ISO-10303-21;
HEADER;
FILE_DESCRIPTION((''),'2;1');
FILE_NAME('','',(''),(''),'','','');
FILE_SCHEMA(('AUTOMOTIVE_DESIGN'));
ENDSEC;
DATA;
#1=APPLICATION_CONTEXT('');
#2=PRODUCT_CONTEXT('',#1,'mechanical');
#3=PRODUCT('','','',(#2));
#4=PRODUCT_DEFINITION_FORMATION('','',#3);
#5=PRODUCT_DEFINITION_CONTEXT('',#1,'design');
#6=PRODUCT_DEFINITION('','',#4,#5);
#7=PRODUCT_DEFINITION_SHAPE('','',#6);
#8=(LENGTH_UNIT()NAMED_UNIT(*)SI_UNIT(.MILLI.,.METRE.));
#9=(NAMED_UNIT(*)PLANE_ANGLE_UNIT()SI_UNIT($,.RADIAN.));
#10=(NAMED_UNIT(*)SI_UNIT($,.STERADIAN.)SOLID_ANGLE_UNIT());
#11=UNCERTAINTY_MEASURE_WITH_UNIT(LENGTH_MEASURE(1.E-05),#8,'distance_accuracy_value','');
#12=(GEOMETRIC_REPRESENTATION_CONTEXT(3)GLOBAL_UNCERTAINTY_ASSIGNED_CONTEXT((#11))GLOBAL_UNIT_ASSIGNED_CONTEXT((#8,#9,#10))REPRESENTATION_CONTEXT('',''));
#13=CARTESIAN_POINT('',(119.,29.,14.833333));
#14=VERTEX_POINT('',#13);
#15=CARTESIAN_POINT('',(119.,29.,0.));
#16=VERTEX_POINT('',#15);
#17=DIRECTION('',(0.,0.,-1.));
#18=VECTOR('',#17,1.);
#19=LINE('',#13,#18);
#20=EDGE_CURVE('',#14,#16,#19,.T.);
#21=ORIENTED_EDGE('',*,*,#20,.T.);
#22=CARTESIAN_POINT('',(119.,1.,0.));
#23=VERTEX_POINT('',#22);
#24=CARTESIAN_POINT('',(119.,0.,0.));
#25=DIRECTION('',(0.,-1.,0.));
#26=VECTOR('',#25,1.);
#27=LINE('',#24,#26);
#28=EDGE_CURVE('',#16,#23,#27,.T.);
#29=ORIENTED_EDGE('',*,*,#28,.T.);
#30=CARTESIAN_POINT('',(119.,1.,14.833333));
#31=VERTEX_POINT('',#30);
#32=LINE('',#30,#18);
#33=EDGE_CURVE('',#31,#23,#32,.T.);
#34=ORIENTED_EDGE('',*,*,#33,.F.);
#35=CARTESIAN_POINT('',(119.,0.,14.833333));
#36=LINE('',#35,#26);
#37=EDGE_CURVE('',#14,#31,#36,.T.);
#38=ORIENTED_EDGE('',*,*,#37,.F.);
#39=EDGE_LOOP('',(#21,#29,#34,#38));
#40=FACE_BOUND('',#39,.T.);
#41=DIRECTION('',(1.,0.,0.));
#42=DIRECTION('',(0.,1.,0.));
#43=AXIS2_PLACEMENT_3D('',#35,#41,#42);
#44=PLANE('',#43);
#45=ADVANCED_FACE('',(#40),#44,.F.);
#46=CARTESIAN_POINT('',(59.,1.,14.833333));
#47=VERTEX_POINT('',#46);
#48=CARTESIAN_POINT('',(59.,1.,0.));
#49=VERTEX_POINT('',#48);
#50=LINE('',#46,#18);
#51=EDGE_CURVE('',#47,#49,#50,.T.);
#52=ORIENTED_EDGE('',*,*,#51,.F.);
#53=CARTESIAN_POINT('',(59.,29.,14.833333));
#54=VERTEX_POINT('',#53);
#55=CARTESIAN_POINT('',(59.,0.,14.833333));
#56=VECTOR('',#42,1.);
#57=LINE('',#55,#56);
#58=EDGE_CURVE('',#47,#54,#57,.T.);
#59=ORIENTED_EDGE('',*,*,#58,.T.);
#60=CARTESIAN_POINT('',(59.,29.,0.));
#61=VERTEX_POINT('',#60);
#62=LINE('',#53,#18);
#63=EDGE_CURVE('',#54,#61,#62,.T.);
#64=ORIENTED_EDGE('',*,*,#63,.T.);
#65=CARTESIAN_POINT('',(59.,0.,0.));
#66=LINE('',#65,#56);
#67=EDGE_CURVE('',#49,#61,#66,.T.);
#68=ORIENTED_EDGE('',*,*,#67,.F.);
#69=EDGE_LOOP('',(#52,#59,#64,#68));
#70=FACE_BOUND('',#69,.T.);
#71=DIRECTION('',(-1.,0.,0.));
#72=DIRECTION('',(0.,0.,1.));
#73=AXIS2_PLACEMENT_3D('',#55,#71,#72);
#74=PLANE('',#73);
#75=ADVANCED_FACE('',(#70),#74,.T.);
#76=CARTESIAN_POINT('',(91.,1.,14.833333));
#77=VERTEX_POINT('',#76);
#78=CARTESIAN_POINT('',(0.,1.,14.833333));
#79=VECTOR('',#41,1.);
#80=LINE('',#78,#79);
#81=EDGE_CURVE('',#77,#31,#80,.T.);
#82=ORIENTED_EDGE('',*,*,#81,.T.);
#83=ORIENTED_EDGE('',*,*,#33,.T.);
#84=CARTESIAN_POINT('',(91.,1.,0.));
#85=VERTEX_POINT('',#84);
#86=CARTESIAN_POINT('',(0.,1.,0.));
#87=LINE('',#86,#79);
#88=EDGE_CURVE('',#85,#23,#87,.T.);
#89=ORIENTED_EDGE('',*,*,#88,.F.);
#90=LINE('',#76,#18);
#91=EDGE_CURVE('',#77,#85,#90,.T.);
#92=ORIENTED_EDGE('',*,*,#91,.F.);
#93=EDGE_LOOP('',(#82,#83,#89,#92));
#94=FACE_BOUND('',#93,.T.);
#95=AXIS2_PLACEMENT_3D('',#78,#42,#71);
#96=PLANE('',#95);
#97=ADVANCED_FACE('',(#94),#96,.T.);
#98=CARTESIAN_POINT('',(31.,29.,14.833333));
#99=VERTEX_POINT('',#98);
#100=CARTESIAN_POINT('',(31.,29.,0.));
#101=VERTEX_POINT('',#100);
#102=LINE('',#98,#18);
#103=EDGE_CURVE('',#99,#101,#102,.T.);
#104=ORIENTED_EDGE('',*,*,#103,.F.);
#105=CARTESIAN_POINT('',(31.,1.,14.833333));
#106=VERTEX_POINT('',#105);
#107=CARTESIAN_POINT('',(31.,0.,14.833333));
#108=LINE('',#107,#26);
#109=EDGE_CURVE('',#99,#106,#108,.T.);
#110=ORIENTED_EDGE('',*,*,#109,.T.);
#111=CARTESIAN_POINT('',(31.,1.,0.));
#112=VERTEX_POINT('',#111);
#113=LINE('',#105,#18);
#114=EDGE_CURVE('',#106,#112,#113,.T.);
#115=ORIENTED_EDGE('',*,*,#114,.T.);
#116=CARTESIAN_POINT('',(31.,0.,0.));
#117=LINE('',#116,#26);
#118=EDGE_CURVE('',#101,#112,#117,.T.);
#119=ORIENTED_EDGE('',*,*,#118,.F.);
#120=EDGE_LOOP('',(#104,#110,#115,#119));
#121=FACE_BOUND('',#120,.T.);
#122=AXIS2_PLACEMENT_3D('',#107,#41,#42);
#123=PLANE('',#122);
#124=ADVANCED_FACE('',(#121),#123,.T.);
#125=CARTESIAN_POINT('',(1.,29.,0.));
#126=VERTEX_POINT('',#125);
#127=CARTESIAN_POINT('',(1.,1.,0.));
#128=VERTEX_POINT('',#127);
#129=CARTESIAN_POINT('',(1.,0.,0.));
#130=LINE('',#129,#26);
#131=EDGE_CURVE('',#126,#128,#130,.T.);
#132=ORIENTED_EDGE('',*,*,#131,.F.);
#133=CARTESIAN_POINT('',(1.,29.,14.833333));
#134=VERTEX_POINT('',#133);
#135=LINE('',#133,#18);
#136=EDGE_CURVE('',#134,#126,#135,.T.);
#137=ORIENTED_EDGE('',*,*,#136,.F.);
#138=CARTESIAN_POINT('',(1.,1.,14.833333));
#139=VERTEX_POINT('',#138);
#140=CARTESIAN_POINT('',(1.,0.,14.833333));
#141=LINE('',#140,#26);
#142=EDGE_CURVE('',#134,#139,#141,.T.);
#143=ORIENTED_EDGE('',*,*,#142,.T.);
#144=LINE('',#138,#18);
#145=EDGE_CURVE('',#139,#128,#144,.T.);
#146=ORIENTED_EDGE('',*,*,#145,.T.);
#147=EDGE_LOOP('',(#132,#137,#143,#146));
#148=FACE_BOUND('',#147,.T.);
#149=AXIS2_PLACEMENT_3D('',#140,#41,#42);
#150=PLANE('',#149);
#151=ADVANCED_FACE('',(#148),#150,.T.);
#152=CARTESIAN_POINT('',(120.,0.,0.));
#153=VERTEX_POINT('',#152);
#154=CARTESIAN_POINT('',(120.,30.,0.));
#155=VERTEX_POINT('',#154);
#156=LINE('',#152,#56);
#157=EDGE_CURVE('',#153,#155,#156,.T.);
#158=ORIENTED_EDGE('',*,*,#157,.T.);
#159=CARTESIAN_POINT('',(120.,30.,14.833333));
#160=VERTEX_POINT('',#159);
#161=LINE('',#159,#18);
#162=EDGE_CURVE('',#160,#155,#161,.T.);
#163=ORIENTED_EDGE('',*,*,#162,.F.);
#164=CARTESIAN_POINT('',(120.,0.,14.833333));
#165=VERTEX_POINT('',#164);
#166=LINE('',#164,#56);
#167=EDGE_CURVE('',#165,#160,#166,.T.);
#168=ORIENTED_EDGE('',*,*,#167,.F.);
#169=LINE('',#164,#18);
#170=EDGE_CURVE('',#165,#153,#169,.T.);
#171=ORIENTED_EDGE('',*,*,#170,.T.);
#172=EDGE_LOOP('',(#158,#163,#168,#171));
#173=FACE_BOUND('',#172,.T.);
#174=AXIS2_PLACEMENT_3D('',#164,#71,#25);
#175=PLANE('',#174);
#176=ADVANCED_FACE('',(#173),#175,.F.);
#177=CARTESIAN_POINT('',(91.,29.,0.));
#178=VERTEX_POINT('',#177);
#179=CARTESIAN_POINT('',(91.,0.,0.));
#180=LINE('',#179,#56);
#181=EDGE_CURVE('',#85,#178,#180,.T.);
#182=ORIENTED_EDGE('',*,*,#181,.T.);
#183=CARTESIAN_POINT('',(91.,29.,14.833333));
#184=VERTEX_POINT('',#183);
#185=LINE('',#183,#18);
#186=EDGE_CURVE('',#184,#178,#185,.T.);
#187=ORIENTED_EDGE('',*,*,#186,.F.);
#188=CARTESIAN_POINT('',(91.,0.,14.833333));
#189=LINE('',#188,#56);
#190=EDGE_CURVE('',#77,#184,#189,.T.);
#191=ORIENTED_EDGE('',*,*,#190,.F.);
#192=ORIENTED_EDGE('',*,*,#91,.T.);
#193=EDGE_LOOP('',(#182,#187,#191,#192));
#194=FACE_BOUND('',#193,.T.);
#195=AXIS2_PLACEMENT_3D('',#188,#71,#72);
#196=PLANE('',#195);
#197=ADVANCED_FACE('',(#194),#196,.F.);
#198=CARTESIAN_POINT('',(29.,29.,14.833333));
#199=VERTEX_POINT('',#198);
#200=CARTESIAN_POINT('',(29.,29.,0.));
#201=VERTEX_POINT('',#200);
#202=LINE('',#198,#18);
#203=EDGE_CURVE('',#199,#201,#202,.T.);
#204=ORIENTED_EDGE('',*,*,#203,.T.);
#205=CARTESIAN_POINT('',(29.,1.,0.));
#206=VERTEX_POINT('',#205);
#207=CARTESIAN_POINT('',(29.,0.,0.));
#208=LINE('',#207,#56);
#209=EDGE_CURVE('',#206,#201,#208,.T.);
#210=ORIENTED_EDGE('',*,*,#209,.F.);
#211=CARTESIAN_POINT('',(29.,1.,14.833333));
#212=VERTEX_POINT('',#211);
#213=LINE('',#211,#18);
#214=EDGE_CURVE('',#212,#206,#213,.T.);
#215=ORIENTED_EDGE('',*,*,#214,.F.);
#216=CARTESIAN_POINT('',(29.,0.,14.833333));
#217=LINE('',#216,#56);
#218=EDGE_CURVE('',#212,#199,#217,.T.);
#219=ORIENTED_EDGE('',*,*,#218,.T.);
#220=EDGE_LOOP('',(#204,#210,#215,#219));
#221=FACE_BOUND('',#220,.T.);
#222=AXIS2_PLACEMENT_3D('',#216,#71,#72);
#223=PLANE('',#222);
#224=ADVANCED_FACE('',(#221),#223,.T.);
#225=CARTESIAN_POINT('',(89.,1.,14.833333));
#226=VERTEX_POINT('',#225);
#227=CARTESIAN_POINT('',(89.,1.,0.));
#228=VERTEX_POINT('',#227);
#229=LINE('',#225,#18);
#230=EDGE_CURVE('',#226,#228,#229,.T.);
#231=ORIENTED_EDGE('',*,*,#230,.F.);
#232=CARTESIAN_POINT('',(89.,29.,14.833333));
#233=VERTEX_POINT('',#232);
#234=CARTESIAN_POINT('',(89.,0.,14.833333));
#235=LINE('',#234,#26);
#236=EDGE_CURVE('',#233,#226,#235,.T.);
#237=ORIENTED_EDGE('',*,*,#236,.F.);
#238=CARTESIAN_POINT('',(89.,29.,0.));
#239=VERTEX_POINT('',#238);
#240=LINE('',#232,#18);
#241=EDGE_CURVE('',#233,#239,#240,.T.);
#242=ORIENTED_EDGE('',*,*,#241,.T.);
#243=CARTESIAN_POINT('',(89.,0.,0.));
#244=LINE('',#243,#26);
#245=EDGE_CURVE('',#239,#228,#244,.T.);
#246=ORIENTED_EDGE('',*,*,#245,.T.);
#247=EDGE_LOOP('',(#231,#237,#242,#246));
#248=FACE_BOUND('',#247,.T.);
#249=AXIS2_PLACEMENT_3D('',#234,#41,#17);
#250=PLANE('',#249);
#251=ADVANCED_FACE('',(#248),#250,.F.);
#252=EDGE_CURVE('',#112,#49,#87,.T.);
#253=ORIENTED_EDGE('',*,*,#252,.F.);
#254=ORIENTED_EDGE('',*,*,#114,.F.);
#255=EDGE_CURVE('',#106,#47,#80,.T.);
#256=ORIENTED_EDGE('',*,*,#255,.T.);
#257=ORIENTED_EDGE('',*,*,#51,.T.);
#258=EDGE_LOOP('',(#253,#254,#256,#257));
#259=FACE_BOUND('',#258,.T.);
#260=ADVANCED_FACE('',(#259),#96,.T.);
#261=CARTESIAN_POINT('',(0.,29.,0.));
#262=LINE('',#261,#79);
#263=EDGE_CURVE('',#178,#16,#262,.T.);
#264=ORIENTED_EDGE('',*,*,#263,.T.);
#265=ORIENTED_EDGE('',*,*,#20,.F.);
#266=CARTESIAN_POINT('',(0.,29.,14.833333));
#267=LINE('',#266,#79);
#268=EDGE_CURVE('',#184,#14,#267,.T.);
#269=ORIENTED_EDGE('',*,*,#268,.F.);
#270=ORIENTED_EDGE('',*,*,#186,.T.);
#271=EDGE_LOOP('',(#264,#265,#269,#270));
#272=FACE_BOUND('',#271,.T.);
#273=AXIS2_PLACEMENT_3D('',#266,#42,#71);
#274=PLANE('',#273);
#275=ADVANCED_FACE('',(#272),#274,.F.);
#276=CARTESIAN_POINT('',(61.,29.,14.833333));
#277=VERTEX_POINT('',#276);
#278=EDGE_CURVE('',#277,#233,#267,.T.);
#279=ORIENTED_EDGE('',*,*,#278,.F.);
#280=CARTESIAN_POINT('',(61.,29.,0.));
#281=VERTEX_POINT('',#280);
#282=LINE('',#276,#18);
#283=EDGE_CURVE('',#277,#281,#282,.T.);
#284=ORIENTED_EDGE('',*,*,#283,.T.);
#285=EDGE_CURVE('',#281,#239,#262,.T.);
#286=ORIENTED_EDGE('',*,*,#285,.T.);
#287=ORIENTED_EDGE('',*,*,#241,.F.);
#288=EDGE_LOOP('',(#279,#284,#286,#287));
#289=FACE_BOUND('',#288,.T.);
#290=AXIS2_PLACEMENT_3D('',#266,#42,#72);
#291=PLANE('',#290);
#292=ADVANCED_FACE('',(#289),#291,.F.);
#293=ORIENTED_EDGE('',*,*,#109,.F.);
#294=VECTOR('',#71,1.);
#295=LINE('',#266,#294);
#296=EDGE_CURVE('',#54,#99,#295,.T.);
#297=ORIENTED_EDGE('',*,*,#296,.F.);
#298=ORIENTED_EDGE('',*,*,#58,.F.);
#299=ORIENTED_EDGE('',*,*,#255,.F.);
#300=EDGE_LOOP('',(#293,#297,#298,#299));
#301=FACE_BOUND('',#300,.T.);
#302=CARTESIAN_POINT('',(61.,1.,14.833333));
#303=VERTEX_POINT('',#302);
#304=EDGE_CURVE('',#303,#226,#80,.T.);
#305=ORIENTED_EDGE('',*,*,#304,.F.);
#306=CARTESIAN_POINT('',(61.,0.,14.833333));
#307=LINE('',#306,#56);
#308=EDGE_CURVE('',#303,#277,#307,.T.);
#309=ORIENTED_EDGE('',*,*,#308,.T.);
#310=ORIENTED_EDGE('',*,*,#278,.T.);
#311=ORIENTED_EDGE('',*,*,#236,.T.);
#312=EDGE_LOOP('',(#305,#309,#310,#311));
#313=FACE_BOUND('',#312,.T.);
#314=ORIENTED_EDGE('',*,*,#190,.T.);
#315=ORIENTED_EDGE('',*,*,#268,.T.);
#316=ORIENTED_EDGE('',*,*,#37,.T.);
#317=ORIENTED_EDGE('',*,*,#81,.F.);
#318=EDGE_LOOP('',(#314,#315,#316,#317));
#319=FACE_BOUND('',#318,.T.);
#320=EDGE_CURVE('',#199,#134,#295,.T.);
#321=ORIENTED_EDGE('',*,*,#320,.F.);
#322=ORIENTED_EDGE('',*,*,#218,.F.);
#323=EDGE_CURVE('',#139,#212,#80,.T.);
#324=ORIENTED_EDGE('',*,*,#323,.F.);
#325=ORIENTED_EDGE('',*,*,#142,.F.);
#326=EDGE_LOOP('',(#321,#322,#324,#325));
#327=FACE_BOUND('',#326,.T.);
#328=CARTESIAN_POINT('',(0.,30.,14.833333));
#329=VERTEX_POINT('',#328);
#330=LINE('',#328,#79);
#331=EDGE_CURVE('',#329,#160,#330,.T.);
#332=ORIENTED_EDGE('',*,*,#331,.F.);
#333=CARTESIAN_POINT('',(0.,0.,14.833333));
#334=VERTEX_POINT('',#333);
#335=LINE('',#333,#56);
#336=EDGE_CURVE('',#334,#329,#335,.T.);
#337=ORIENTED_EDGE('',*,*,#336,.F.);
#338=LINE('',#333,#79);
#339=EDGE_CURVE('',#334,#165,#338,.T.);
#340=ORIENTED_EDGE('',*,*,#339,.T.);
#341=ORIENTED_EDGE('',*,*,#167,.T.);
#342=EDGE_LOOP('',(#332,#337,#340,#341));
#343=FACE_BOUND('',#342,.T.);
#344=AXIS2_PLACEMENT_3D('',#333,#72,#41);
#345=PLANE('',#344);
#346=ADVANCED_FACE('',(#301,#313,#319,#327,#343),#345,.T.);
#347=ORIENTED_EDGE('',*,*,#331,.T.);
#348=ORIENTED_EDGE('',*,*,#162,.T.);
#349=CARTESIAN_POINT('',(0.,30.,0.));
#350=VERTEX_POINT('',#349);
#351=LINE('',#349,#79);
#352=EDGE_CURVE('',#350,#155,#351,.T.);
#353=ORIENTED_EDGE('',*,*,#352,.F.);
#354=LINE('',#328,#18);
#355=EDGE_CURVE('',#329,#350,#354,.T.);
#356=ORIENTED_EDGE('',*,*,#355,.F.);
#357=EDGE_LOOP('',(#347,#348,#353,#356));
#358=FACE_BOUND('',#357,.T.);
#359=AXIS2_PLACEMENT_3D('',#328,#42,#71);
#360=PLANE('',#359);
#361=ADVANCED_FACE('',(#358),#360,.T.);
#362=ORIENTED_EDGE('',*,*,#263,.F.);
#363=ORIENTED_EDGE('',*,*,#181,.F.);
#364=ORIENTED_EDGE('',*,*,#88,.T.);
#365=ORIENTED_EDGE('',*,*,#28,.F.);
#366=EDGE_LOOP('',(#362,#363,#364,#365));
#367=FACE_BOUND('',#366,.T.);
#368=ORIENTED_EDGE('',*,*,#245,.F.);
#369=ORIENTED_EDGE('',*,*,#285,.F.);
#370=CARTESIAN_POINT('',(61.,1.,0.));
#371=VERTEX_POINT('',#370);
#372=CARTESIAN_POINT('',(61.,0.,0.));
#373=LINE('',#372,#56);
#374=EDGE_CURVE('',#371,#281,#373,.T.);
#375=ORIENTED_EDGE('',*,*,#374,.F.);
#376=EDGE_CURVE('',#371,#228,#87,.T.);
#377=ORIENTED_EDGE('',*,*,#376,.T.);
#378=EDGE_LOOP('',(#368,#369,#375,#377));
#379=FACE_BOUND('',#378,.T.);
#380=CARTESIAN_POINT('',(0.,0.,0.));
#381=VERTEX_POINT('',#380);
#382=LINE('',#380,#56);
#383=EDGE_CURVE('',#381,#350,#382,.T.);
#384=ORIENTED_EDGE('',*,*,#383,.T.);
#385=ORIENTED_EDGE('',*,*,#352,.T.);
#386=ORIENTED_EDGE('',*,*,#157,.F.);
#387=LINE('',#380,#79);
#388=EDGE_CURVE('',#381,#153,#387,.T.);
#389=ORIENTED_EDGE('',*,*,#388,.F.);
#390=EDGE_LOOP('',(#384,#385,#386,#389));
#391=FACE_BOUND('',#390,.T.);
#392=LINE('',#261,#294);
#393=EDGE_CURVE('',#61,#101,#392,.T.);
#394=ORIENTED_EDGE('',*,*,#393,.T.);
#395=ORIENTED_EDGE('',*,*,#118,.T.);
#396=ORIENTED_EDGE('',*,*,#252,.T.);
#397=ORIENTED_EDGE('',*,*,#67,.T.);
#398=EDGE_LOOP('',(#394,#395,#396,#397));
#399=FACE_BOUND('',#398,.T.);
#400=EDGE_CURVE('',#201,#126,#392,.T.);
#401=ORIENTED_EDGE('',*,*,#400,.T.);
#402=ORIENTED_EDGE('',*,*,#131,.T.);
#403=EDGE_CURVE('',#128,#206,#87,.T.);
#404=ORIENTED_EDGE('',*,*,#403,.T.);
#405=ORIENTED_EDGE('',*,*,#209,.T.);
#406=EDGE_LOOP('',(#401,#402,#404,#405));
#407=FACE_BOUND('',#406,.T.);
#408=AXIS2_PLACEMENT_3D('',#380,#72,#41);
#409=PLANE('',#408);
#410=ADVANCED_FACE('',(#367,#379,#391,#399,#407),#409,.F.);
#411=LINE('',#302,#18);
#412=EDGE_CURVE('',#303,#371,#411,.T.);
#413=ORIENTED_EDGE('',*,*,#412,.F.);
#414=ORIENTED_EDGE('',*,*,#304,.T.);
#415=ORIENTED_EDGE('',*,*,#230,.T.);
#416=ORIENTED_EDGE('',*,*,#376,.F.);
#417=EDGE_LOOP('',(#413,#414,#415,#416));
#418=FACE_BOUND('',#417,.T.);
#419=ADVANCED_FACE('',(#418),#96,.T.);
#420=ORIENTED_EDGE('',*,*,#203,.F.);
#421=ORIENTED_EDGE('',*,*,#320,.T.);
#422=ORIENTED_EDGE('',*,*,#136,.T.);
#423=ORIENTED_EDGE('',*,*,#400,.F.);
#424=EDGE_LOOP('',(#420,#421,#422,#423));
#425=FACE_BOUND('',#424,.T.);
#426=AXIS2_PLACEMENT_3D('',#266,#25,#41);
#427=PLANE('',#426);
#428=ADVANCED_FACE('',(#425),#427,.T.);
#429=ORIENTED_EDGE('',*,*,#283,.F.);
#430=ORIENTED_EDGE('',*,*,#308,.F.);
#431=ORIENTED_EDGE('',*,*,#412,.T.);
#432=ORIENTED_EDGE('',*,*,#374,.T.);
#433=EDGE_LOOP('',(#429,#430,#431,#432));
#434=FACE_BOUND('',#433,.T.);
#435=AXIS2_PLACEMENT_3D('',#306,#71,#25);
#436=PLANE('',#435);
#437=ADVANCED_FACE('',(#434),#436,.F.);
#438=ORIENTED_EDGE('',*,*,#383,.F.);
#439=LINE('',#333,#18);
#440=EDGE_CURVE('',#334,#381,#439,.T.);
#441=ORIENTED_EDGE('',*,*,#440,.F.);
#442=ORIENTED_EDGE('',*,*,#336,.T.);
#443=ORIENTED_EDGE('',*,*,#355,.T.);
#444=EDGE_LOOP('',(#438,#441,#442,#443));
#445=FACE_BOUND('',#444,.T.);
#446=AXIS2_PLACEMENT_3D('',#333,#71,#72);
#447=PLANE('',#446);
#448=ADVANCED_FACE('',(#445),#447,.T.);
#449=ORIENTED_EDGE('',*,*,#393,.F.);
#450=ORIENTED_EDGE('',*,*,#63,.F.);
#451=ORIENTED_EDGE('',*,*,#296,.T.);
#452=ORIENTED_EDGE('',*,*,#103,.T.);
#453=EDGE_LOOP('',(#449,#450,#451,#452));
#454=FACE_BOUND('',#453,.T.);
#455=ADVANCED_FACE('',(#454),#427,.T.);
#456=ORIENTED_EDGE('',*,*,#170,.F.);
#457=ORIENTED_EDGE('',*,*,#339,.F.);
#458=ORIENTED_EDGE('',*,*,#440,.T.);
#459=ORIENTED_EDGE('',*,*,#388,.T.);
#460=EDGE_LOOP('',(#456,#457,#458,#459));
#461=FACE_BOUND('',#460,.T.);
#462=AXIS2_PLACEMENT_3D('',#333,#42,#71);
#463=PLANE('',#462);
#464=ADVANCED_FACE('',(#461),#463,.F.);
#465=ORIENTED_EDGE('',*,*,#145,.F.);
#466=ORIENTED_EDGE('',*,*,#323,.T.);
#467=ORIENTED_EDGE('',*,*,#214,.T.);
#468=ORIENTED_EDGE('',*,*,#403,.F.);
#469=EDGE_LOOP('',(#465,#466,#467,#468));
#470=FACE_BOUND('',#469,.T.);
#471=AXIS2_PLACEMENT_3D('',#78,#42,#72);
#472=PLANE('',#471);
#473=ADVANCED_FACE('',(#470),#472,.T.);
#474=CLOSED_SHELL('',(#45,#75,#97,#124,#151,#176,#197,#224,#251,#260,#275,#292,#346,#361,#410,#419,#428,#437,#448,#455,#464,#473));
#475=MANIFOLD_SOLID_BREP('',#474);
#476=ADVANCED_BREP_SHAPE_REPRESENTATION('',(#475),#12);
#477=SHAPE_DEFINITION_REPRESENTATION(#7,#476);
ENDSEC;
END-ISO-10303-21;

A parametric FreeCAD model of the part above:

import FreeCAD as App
import Part
import Sketcher

V = App.Vector

doc = App.newDocument("Part")
body = doc.addObject("PartDesign::Body", "Body")

# Sketch on XY plane
sketch1 = body.newObject("Sketcher::SketchObject", "Sketch")
sketch1.AttachmentSupport = (doc.getObject("XY_Plane"), [""])
sketch1.MapMode = "FlatFace"
sketch1.addGeometry([
    Part.LineSegment(V(0, 30, 0), V(0, 0, 0)),  # 0
    Part.LineSegment(V(0, 0, 0), V(120, 0, 0)),  # 1
    Part.LineSegment(V(120, 0, 0), V(120, 30, 0)),  # 2
    Part.LineSegment(V(120, 30, 0), V(0, 30, 0)),  # 3
    Part.LineSegment(V(29, 1, 0), V(1, 1, 0)),  # 4
    Part.LineSegment(V(1, 1, 0), V(1, 29, 0)),  # 5
    Part.LineSegment(V(1, 29, 0), V(29, 29, 0)),  # 6
    Part.LineSegment(V(29, 29, 0), V(29, 1, 0)),  # 7
    Part.LineSegment(V(59, 1, 0), V(31, 1, 0)),  # 8
    Part.LineSegment(V(31, 1, 0), V(31, 29, 0)),  # 9
    Part.LineSegment(V(31, 29, 0), V(59, 29, 0)),  # 10
    Part.LineSegment(V(59, 29, 0), V(59, 1, 0)),  # 11
    Part.LineSegment(V(89, 1, 0), V(61, 1, 0)),  # 12
    Part.LineSegment(V(61, 1, 0), V(61, 29, 0)),  # 13
    Part.LineSegment(V(61, 29, 0), V(89, 29, 0)),  # 14
    Part.LineSegment(V(89, 29, 0), V(89, 1, 0)),  # 15
    Part.LineSegment(V(119, 1, 0), V(91, 1, 0)),  # 16
    Part.LineSegment(V(91, 1, 0), V(91, 29, 0)),  # 17
    Part.LineSegment(V(91, 29, 0), V(119, 29, 0)),  # 18
    Part.LineSegment(V(119, 29, 0), V(119, 1, 0)),  # 19
], False)
sketch1.addConstraint([
    Sketcher.Constraint("Coincident", 0, 2, 1, 1),
    Sketcher.Constraint("Coincident", 1, 2, 2, 1),
    Sketcher.Constraint("Coincident", 2, 2, 3, 1),
    Sketcher.Constraint("Coincident", 3, 2, 0, 1),
    Sketcher.Constraint("Coincident", 4, 2, 5, 1),
    Sketcher.Constraint("Coincident", 5, 2, 6, 1),
    Sketcher.Constraint("Coincident", 6, 2, 7, 1),
    Sketcher.Constraint("Coincident", 7, 2, 4, 1),
    Sketcher.Constraint("Coincident", 8, 2, 9, 1),
    Sketcher.Constraint("Coincident", 9, 2, 10, 1),
    Sketcher.Constraint("Coincident", 10, 2, 11, 1),
    Sketcher.Constraint("Coincident", 11, 2, 8, 1),
    Sketcher.Constraint("Coincident", 12, 2, 13, 1),
    Sketcher.Constraint("Coincident", 13, 2, 14, 1),
    Sketcher.Constraint("Coincident", 14, 2, 15, 1),
    Sketcher.Constraint("Coincident", 15, 2, 12, 1),
    Sketcher.Constraint("Coincident", 16, 2, 17, 1),
    Sketcher.Constraint("Coincident", 17, 2, 18, 1),
    Sketcher.Constraint("Coincident", 18, 2, 19, 1),
    Sketcher.Constraint("Coincident", 19, 2, 16, 1),
    Sketcher.Constraint("Vertical", 0),
    Sketcher.Constraint("Horizontal", 1),
    Sketcher.Constraint("Vertical", 2),
    Sketcher.Constraint("Horizontal", 3),
    Sketcher.Constraint("Horizontal", 4),
    Sketcher.Constraint("Vertical", 5),
    Sketcher.Constraint("Horizontal", 6),
    Sketcher.Constraint("Vertical", 7),
    Sketcher.Constraint("Horizontal", 8),
    Sketcher.Constraint("Vertical", 9),
    Sketcher.Constraint("Horizontal", 10),
    Sketcher.Constraint("Vertical", 11),
    Sketcher.Constraint("Horizontal", 12),
    Sketcher.Constraint("Vertical", 13),
    Sketcher.Constraint("Horizontal", 14),
    Sketcher.Constraint("Vertical", 15),
    Sketcher.Constraint("Horizontal", 16),
    Sketcher.Constraint("Vertical", 17),
    Sketcher.Constraint("Horizontal", 18),
    Sketcher.Constraint("Vertical", 19),
    Sketcher.Constraint("Coincident", 0, 2, -1, 1),
    Sketcher.Constraint("Horizontal", 7, 2, 8, 2),
    Sketcher.Constraint("Horizontal", 6, 2, 9, 2),
    Sketcher.Constraint("Horizontal", 11, 2, 12, 2),
    Sketcher.Constraint("Horizontal", 10, 2, 13, 2),
    Sketcher.Constraint("Horizontal", 15, 2, 16, 2),
    Sketcher.Constraint("Horizontal", 14, 2, 17, 2),
    Sketcher.Constraint("Equal", 6, 8),
    Sketcher.Constraint("Equal", 10, 12),
    Sketcher.Constraint("Equal", 14, 16),
    Sketcher.Constraint("Equal", 18, 5),
    Sketcher.Constraint("DistanceX", 1, 1, 1, 2, 120.0),
    Sketcher.Constraint("DistanceX", 4, 2, 4, 1, 28.0),
    Sketcher.Constraint("DistanceY", 0, 2, 0, 1, 30.0),
    Sketcher.Constraint("DistanceX", -1, 1, 4, 2, 1.0),
    Sketcher.Constraint("DistanceY", -1, 1, 4, 2, 1.0),
    Sketcher.Constraint("DistanceX", -1, 1, 8, 2, 31.0),
    Sketcher.Constraint("DistanceX", -1, 1, 12, 2, 61.0),
    Sketcher.Constraint("DistanceX", -1, 1, 16, 2, 91.0),
])
pad1 = body.newObject("PartDesign::Pad", "Pad")
pad1.Profile = sketch1
pad1.Length = 14.833333

doc.recompute()
